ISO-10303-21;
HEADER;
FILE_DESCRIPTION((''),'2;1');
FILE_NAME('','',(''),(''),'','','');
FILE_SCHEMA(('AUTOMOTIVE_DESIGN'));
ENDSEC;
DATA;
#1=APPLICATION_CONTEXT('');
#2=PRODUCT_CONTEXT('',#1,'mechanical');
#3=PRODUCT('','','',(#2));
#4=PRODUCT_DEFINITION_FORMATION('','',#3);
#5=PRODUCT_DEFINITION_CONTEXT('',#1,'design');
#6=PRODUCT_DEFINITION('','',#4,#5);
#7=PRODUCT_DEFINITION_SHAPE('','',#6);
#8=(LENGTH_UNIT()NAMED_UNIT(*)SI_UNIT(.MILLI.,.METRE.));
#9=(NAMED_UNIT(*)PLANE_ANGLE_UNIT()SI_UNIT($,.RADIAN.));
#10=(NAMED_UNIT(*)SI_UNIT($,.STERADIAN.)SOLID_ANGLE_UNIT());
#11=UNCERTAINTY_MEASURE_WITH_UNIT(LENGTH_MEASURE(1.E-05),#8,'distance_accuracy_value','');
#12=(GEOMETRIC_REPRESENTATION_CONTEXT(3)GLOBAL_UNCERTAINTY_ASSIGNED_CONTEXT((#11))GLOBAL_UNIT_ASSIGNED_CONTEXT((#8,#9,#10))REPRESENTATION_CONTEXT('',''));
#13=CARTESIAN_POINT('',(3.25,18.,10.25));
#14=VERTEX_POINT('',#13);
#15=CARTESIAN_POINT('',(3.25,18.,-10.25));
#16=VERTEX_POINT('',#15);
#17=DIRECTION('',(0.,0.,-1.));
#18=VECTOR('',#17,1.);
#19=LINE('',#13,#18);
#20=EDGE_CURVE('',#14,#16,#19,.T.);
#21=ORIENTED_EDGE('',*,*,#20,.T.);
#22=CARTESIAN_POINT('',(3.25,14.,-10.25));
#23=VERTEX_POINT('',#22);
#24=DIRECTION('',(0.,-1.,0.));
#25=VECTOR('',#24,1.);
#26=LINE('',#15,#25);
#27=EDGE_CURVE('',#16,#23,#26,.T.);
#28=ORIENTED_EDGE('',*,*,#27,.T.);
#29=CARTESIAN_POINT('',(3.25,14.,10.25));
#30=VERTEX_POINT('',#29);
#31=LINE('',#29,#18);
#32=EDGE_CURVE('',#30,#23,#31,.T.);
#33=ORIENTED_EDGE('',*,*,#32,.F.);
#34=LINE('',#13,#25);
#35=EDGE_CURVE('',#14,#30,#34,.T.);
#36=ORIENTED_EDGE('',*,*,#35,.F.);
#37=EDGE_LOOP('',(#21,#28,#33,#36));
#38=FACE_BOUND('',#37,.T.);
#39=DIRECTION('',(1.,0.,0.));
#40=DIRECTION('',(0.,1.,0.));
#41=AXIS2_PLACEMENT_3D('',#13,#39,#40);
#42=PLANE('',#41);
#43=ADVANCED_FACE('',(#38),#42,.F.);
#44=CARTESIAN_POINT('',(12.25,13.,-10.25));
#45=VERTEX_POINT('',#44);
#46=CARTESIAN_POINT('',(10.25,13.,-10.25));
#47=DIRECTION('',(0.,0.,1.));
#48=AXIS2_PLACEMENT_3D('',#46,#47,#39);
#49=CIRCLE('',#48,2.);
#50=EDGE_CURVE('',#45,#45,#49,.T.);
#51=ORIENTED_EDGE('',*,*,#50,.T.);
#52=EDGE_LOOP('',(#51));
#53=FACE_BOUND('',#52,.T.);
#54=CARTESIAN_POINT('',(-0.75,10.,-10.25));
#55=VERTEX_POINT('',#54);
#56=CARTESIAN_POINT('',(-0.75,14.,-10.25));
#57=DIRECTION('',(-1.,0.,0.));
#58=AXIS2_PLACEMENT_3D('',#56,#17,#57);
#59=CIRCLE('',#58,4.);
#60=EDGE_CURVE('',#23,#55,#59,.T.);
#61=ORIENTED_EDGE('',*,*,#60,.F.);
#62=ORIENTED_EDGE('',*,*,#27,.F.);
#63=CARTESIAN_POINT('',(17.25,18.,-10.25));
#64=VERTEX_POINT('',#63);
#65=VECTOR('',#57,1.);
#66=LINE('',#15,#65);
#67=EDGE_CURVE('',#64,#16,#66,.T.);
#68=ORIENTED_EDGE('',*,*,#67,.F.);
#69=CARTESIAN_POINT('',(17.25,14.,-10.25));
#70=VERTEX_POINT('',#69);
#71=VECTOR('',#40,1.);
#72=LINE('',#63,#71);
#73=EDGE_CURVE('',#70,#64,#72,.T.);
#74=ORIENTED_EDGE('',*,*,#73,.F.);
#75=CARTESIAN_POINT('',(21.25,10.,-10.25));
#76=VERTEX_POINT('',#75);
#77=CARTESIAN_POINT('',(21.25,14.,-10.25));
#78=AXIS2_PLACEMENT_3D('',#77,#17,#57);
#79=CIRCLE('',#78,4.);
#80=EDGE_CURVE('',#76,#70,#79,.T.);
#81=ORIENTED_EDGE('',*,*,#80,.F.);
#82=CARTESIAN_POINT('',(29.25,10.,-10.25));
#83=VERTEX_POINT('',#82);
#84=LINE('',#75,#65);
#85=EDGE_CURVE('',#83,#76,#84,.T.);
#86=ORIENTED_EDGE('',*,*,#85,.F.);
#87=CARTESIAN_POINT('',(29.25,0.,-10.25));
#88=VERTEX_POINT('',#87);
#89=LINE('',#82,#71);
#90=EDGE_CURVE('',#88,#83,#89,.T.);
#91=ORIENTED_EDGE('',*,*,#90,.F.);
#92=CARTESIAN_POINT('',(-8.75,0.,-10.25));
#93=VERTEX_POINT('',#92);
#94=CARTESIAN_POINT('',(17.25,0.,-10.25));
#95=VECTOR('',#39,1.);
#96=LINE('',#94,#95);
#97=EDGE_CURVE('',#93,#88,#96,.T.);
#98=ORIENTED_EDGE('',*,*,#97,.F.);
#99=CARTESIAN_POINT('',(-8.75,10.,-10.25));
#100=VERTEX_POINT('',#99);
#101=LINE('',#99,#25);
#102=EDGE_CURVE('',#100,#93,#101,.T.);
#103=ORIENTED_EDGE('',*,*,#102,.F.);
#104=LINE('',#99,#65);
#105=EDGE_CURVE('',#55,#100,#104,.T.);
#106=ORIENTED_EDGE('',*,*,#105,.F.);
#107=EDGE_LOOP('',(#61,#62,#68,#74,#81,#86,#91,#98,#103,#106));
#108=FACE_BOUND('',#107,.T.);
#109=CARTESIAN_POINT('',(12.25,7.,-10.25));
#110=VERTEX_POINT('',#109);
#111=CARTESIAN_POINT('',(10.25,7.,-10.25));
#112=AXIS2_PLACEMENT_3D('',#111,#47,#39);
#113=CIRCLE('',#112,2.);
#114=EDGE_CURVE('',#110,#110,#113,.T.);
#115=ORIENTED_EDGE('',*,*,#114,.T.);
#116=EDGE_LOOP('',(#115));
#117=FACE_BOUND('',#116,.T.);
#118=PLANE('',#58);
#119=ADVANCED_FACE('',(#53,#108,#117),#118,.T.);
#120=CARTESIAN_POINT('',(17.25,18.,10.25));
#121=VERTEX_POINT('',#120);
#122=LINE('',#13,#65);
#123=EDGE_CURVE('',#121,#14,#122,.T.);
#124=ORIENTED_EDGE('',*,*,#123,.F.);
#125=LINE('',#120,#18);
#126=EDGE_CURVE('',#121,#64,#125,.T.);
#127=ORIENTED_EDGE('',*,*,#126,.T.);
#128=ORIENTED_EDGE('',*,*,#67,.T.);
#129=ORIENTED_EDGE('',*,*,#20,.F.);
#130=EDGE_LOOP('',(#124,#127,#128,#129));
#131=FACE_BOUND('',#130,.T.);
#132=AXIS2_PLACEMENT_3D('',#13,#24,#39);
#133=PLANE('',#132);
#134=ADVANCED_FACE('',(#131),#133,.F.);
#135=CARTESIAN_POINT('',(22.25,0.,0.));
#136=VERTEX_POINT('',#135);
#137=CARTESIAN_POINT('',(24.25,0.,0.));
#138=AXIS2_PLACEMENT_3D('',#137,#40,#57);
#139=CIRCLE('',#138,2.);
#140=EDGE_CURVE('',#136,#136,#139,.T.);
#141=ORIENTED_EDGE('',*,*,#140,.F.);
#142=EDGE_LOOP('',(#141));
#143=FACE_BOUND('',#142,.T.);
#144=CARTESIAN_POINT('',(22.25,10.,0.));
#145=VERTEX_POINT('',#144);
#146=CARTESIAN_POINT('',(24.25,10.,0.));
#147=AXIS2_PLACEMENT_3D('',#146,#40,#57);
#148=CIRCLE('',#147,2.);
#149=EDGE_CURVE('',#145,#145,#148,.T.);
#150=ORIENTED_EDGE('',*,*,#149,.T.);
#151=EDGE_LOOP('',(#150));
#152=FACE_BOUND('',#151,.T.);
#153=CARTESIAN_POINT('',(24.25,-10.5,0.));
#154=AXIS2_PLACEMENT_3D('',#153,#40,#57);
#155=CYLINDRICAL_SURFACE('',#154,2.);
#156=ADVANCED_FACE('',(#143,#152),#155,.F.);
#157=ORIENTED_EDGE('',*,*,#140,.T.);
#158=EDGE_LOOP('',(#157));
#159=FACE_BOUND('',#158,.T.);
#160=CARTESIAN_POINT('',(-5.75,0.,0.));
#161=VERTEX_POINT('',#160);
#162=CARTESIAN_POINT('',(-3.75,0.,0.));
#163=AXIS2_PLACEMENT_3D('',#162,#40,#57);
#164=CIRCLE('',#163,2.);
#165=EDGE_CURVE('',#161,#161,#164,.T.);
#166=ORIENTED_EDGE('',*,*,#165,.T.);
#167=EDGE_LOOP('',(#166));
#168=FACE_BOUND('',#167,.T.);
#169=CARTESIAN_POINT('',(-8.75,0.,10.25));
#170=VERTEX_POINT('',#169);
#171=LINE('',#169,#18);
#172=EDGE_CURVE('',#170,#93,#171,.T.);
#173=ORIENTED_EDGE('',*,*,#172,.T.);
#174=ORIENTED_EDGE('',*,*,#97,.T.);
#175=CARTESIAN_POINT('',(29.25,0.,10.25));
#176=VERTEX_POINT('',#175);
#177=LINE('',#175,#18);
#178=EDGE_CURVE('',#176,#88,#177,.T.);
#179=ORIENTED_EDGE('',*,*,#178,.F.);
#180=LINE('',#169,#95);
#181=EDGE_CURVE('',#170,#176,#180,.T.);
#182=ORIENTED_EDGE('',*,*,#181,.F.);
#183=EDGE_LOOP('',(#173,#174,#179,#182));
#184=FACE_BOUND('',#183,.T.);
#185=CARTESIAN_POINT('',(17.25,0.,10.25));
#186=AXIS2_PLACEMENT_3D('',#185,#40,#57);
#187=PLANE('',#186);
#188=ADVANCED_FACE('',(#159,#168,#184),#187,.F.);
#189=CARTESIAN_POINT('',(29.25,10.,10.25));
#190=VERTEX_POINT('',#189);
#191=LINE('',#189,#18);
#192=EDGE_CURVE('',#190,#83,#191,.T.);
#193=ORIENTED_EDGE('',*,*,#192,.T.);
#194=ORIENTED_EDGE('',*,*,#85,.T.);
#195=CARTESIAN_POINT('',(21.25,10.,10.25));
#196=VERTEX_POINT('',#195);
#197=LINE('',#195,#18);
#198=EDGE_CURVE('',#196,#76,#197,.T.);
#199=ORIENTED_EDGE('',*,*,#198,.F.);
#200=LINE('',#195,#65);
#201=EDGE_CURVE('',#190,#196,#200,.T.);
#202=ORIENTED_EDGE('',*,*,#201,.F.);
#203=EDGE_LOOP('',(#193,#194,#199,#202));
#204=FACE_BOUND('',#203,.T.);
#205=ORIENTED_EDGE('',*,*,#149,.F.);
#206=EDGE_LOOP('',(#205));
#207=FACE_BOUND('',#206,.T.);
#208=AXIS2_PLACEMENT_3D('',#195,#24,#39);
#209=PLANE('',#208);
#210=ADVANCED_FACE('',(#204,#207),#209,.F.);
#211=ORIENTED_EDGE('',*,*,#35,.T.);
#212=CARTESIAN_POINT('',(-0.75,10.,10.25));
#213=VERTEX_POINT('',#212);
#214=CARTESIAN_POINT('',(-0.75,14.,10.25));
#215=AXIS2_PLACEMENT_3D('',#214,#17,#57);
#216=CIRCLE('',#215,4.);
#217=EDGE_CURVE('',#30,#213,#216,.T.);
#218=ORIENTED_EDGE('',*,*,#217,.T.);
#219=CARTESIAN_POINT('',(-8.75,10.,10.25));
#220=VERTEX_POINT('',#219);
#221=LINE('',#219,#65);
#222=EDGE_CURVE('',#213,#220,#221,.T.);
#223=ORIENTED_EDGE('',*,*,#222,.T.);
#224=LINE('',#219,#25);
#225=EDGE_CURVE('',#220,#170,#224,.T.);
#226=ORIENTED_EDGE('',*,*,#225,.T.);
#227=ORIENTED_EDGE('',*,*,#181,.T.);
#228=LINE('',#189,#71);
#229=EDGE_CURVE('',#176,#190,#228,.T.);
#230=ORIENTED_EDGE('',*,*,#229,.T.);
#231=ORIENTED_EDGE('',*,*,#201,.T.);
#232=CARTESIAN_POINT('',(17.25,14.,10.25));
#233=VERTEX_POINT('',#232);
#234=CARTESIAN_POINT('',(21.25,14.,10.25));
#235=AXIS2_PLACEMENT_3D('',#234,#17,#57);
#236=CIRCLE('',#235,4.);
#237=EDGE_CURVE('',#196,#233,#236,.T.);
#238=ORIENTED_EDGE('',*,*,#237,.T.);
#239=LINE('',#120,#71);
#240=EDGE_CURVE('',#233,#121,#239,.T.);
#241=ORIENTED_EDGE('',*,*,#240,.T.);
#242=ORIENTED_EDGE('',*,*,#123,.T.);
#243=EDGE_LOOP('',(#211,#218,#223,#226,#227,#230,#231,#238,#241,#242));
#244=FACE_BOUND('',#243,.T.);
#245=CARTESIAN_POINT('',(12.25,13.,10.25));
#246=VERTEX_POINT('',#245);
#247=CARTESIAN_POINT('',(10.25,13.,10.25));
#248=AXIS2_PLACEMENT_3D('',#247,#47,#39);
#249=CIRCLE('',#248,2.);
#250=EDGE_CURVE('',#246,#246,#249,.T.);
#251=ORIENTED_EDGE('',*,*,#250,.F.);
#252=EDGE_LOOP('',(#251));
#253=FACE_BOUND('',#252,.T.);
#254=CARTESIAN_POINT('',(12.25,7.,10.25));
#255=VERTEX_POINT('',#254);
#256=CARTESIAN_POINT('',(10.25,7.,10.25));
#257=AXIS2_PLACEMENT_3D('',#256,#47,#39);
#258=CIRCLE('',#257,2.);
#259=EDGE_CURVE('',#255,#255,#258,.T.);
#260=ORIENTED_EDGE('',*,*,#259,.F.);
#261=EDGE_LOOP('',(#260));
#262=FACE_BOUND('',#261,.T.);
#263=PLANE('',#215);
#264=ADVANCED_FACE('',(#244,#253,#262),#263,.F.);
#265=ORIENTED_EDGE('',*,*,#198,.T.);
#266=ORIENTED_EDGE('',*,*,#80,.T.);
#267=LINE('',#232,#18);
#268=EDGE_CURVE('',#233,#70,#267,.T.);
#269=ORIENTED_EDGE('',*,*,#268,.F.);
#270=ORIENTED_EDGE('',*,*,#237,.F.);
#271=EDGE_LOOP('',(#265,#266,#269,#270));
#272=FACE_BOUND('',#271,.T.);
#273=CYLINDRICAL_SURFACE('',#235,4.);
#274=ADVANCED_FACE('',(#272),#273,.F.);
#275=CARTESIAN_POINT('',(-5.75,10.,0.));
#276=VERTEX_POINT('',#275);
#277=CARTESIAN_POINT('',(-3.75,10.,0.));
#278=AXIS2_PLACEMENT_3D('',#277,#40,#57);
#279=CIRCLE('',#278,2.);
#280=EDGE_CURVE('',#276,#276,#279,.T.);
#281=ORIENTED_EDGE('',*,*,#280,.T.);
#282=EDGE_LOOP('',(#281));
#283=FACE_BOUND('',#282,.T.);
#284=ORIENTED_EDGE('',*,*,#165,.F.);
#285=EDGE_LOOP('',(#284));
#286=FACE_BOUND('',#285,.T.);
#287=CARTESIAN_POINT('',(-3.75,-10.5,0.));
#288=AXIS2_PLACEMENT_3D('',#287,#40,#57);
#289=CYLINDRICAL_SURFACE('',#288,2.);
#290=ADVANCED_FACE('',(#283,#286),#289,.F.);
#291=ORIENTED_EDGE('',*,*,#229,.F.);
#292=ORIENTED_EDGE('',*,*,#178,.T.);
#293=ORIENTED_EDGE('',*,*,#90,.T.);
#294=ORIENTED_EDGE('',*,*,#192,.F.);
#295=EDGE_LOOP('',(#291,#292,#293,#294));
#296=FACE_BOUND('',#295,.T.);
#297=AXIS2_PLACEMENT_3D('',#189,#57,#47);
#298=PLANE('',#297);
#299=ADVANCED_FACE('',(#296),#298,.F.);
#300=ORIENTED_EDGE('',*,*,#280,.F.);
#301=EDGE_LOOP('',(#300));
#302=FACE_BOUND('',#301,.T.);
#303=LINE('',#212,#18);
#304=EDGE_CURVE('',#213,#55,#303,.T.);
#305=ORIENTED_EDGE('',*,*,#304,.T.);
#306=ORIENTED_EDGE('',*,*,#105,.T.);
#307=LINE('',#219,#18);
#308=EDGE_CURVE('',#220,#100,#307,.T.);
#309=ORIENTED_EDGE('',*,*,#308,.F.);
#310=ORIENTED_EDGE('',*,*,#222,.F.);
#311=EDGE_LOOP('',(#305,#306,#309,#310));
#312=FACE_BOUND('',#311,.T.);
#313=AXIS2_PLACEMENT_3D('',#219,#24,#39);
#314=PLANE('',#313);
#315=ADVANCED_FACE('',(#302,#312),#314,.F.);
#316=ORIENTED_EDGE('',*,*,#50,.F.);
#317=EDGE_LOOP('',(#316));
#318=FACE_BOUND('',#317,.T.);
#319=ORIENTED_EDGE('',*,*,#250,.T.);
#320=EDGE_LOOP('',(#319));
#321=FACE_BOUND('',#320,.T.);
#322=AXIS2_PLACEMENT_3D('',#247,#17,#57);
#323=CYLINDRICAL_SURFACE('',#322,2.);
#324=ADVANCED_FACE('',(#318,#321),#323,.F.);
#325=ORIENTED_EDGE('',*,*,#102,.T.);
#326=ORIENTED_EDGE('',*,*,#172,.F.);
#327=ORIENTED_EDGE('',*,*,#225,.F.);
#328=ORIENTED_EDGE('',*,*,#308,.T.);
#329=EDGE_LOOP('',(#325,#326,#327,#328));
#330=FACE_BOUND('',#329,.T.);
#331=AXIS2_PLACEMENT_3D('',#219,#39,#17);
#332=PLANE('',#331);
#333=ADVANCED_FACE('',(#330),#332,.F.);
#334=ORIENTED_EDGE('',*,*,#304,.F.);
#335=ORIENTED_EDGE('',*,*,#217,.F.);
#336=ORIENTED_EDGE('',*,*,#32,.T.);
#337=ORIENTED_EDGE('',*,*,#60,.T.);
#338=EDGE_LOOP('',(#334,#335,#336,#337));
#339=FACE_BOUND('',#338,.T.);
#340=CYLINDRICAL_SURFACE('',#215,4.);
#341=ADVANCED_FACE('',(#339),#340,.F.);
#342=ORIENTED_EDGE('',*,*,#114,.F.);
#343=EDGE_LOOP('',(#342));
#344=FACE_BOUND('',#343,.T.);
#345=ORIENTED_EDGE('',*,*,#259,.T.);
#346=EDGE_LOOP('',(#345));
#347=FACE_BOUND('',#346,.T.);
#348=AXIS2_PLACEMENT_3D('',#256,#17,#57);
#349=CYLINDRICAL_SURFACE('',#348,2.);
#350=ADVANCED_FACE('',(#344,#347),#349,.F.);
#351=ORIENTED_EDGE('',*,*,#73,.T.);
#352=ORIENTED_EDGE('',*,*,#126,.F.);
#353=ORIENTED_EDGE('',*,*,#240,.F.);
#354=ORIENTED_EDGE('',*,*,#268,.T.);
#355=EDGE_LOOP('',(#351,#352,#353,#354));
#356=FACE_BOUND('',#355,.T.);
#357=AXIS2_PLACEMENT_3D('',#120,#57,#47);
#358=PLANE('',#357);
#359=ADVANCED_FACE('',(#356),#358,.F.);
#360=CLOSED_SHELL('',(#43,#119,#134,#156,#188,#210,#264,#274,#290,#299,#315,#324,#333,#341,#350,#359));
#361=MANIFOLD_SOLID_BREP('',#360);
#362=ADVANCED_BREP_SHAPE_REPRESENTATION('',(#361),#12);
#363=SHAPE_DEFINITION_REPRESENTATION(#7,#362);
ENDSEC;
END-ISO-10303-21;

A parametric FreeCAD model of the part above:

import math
import FreeCAD as App
import Part
import Sketcher
from FreeCAD import Vector

doc = App.newDocument("Part")
body = doc.addObject("PartDesign::Body", "Body")

# Sketch on YZ plane
sketch1 = body.newObject("Sketcher::SketchObject", "Sketch")
sketch1.AttachmentSupport = (doc.getObject("YZ_Plane"), [""])
sketch1.MapMode = "FlatFace"
sketch1.addGeometry(Part.LineSegment(Vector(18, -7, 0), Vector(18, 7, 0)), False)
sketch1.addGeometry(Part.LineSegment(Vector(18, 7, 0), Vector(14, 7, 0)), False)
sketch1.addGeometry(Part.ArcOfCircle(Part.Circle(Vector(14, 11, 0), Vector(0, 0, 1), 4), math.radians(180), math.radians(270)), False)
sketch1.addGeometry(Part.LineSegment(Vector(10, 11, 0), Vector(10, 19, 0)), False)
sketch1.addGeometry(Part.LineSegment(Vector(10, 19, 0), Vector(0, 19, 0)), False)
sketch1.addGeometry(Part.LineSegment(Vector(0, 19, 0), Vector(0, -19, 0)), False)
sketch1.addGeometry(Part.LineSegment(Vector(0, -19, 0), Vector(10, -19, 0)), False)
sketch1.addGeometry(Part.LineSegment(Vector(10, -19, 0), Vector(10, -11, 0)), False)
sketch1.addGeometry(Part.ArcOfCircle(Part.Circle(Vector(14, -11, 0), Vector(0, 0, 1), 4), math.radians(90), math.radians(180)), False)
sketch1.addGeometry(Part.LineSegment(Vector(14, -7, 0), Vector(18, -7, 0)), False)
sketch1.addGeometry(Part.Circle(Vector(7, 0, 0), Vector(0, 0, 1), 2), False)
sketch1.addGeometry(Part.Circle(Vector(13, 0, 0), Vector(0, 0, 1), 2), False)
sketch1.addConstraint(Sketcher.Constraint("Coincident", 0, 2, 1, 1))
sketch1.addConstraint(Sketcher.Constraint("Tangent", 1, 2, 2, 2))
sketch1.addConstraint(Sketcher.Constraint("Tangent", 2, 1, 3, 1))
sketch1.addConstraint(Sketcher.Constraint("Coincident", 3, 2, 4, 1))
sketch1.addConstraint(Sketcher.Constraint("Coincident", 4, 2, 5, 1))
sketch1.addConstraint(Sketcher.Constraint("Coincident", 5, 2, 6, 1))
sketch1.addConstraint(Sketcher.Constraint("Coincident", 6, 2, 7, 1))
sketch1.addConstraint(Sketcher.Constraint("Tangent", 7, 2, 8, 2))
sketch1.addConstraint(Sketcher.Constraint("Tangent", 8, 1, 9, 1))
sketch1.addConstraint(Sketcher.Constraint("Coincident", 9, 2, 0, 1))
sketch1.addConstraint(Sketcher.Constraint("Vertical", 0))
sketch1.addConstraint(Sketcher.Constraint("Horizontal", 1))
sketch1.addConstraint(Sketcher.Constraint("Vertical", 3))
sketch1.addConstraint(Sketcher.Constraint("Horizontal", 4))
sketch1.addConstraint(Sketcher.Constraint("Vertical", 5))
sketch1.addConstraint(Sketcher.Constraint("Horizontal", 6))
sketch1.addConstraint(Sketcher.Constraint("Vertical", 7))
sketch1.addConstraint(Sketcher.Constraint("Horizontal", 9))
sketch1.addConstraint(Sketcher.Constraint("Equal", 2, 8))
sketch1.addConstraint(Sketcher.Constraint("Equal", 10, 11))
sketch1.addConstraint(Sketcher.Constraint("Symmetric", 4, 2, 5, 2, -1, 1))
sketch1.addConstraint(Sketcher.Constraint("Symmetric", 2, 3, 8, 3, -1))
sketch1.addConstraint(Sketcher.Constraint("PointOnObject", 10, 3, -1))
sketch1.addConstraint(Sketcher.Constraint("PointOnObject", 11, 3, -1))
sketch1.addConstraint(Sketcher.Constraint("Diameter", 10, 4.0))
sketch1.addConstraint(Sketcher.Constraint("Radius", 2, 4.0))
sketch1.addConstraint(Sketcher.Constraint("DistanceX", 1, 2, 1, 1, 4.0))
sketch1.addConstraint(Sketcher.Constraint("DistanceX", 4, 2, 4, 1, 10.0))
sketch1.addConstraint(Sketcher.Constraint("DistanceY", 0, 1, 0, 2, 14.0))
sketch1.addConstraint(Sketcher.Constraint("DistanceY", 3, 1, 3, 2, 8.0))
sketch1.addConstraint(Sketcher.Constraint("DistanceX", -1, 1, 10, 3, 7.0))
sketch1.addConstraint(Sketcher.Constraint("DistanceX", -1, 1, 11, 3, 13.0))
pad1 = body.newObject("PartDesign::Pad", "Pad")
pad1.Profile = sketch1
pad1.Length = 20.5

# Sketch on XZ plane
sketch2 = body.newObject("Sketcher::SketchObject", "Sketch001")
sketch2.AttachmentSupport = (doc.getObject("XZ_Plane"), [""])
sketch2.MapMode = "FlatFace"
sketch2.AttachmentOffset = App.Placement(Vector(0, 0, -10), App.Rotation())
sketch2.addGeometry(Part.Circle(Vector(10.25, -14, 0), Vector(0, 0, 1), 2), False)
sketch2.addGeometry(Part.Circle(Vector(10.25, 14, 0), Vector(0, 0, 1), 2), False)
sketch2.addConstraint(Sketcher.Constraint("Equal", 0, 1))
sketch2.addConstraint(Sketcher.Constraint("Symmetric", 0, 3, 1, 3, -1))
sketch2.addConstraint(Sketcher.Constraint("Diameter", 0, 4.0))
sketch2.addConstraint(Sketcher.Constraint("DistanceY", 0, 3, -1, 1, 14.0))
sketch2.addConstraint(Sketcher.Constraint("DistanceX", -1, 1, 0, 3, 10.25))
pocket1 = body.newObject("PartDesign::Pocket", "Pocket")
pocket1.Profile = sketch2
pocket1.Length = 20.5
pocket1.Reversed = True
body2 = doc.addObject("PartDesign::Body", "Body001")
doc.recompute()

body.Placement = App.Placement(Vector(10.25, 0, -10.25), App.Rotation(Vector(0, -1, 0), 90))
boolean = body2.newObject("PartDesign::Boolean", "Boolean")
boolean.Type = "Fuse"
boolean.addObjects([body])

doc.recompute()
